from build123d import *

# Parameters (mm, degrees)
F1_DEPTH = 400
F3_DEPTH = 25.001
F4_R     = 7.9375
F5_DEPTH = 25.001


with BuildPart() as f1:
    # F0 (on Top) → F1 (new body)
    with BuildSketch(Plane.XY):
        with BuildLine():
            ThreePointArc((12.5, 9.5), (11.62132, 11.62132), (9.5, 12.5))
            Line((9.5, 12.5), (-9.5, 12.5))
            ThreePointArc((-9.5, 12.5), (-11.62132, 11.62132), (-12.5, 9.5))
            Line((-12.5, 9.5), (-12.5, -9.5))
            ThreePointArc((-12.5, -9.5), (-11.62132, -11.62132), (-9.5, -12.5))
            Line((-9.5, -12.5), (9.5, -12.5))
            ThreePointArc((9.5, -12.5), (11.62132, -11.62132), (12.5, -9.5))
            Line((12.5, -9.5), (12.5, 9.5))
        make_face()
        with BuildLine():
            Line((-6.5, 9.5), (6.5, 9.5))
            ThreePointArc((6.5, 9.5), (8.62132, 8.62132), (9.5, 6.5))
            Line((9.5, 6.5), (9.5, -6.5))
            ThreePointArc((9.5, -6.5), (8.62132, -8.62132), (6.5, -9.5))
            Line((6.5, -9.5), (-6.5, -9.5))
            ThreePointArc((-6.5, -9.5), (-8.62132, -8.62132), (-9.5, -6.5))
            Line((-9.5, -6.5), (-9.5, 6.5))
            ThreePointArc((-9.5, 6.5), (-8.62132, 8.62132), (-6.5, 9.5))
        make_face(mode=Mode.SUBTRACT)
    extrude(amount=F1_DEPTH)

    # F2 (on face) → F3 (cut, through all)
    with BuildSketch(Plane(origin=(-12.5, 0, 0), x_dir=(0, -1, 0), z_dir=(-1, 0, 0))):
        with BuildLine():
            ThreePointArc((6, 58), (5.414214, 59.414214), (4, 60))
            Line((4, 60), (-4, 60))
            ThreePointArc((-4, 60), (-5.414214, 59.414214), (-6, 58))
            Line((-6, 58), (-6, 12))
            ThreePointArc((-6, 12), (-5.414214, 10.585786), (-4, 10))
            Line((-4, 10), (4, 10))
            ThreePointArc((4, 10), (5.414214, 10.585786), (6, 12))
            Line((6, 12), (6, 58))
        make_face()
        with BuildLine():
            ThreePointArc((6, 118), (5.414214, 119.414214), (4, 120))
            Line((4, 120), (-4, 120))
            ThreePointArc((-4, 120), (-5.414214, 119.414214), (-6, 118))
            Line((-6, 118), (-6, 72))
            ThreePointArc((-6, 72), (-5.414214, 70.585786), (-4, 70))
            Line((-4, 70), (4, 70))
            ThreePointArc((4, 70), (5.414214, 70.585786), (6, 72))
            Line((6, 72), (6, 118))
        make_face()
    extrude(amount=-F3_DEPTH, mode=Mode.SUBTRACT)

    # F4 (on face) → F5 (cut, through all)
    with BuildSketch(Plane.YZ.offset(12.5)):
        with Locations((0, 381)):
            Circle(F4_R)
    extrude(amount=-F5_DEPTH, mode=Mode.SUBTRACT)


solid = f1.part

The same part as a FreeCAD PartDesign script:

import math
import FreeCAD as App
import Part
import Sketcher
from FreeCAD import Vector
Q = App.Units.Quantity

doc = App.newDocument("Part")
body = doc.addObject("PartDesign::Body", "Body")

sketch1 = body.newObject("Sketcher::SketchObject", "Sketch")
sketch1.AttachmentSupport = (doc.getObject("XY_Plane"), [""])
sketch1.MapMode = "FlatFace"
sketch1.addGeometry(Part.ArcOfCircle(Part.Circle(Vector(9.5, 9.5, 0), Vector(0, 0, 1), 3), math.radians(0), math.radians(90)), False)
sketch1.addGeometry(Part.LineSegment(Vector(9.5, 12.5, 0), Vector(-9.5, 12.5, 0)), False)
sketch1.addGeometry(Part.ArcOfCircle(Part.Circle(Vector(-9.5, 9.5, 0), Vector(0, 0, 1), 3), math.radians(90), math.radians(180)), False)
sketch1.addGeometry(Part.LineSegment(Vector(-12.5, 9.5, 0), Vector(-12.5, -9.5, 0)), False)
sketch1.addGeometry(Part.ArcOfCircle(Part.Circle(Vector(-9.5, -9.5, 0), Vector(0, 0, 1), 3), math.radians(-180), math.radians(-90)), False)
sketch1.addGeometry(Part.LineSegment(Vector(-9.5, -12.5, 0), Vector(9.5, -12.5, 0)), False)
sketch1.addGeometry(Part.ArcOfCircle(Part.Circle(Vector(9.5, -9.5, 0), Vector(0, 0, 1), 3), math.radians(-90), math.radians(0)), False)
sketch1.addGeometry(Part.LineSegment(Vector(12.5, -9.5, 0), Vector(12.5, 9.5, 0)), False)
sketch1.addGeometry(Part.ArcOfCircle(Part.Circle(Vector(-6.5, 6.5, 0), Vector(0, 0, 1), 3), math.radians(90), math.radians(180)), False)
sketch1.addGeometry(Part.LineSegment(Vector(-6.5, 9.5, 0), Vector(6.5, 9.5, 0)), False)
sketch1.addGeometry(Part.ArcOfCircle(Part.Circle(Vector(6.5, 6.5, 0), Vector(0, 0, 1), 3), math.radians(0), math.radians(90)), False)
sketch1.addGeometry(Part.LineSegment(Vector(9.5, 6.5, 0), Vector(9.5, -6.5, 0)), False)
sketch1.addGeometry(Part.ArcOfCircle(Part.Circle(Vector(6.5, -6.5, 0), Vector(0, 0, 1), 3), math.radians(-90), math.radians(0)), False)
sketch1.addGeometry(Part.LineSegment(Vector(6.5, -9.5, 0), Vector(-6.5, -9.5, 0)), False)
sketch1.addGeometry(Part.ArcOfCircle(Part.Circle(Vector(-6.5, -6.5, 0), Vector(0, 0, 1), 3), math.radians(-180), math.radians(-90)), False)
sketch1.addGeometry(Part.LineSegment(Vector(-9.5, -6.5, 0), Vector(-9.5, 6.5, 0)), False)
sketch1.addConstraint(Sketcher.Constraint("Tangent", 0, 2, 1, 1))
sketch1.addConstraint(Sketcher.Constraint("Tangent", 1, 2, 2, 1))
sketch1.addConstraint(Sketcher.Constraint("Tangent", 2, 2, 3, 1))
sketch1.addConstraint(Sketcher.Constraint("Tangent", 3, 2, 4, 1))
sketch1.addConstraint(Sketcher.Constraint("Tangent", 4, 2, 5, 1))
sketch1.addConstraint(Sketcher.Constraint("Tangent", 5, 2, 6, 1))
sketch1.addConstraint(Sketcher.Constraint("Tangent", 6, 2, 7, 1))
sketch1.addConstraint(Sketcher.Constraint("Tangent", 7, 2, 0, 1))
sketch1.addConstraint(Sketcher.Constraint("Tangent", 8, 1, 9, 1))
sketch1.addConstraint(Sketcher.Constraint("Tangent", 9, 2, 10, 2))
sketch1.addConstraint(Sketcher.Constraint("Tangent", 10, 1, 11, 1))
sketch1.addConstraint(Sketcher.Constraint("Tangent", 11, 2, 12, 2))
sketch1.addConstraint(Sketcher.Constraint("Tangent", 12, 1, 13, 1))
sketch1.addConstraint(Sketcher.Constraint("Tangent", 13, 2, 14, 2))
sketch1.addConstraint(Sketcher.Constraint("Tangent", 14, 1, 15, 1))
sketch1.addConstraint(Sketcher.Constraint("Tangent", 15, 2, 8, 2))
sketch1.addConstraint(Sketcher.Constraint("Horizontal", 1))
sketch1.addConstraint(Sketcher.Constraint("Vertical", 3))
sketch1.addConstraint(Sketcher.Constraint("Horizontal", 5))
sketch1.addConstraint(Sketcher.Constraint("Vertical", 7))
sketch1.addConstraint(Sketcher.Constraint("Horizontal", 9))
sketch1.addConstraint(Sketcher.Constraint("Vertical", 11))
sketch1.addConstraint(Sketcher.Constraint("Horizontal", 13))
sketch1.addConstraint(Sketcher.Constraint("Vertical", 15))
sketch1.addConstraint(Sketcher.Constraint("Equal", 0, 2))
sketch1.addConstraint(Sketcher.Constraint("Equal", 2, 4))
sketch1.addConstraint(Sketcher.Constraint("Equal", 4, 6))
sketch1.addConstraint(Sketcher.Constraint("Equal", 6, 8))
sketch1.addConstraint(Sketcher.Constraint("Equal", 8, 10))
sketch1.addConstraint(Sketcher.Constraint("Equal", 10, 12))
sketch1.addConstraint(Sketcher.Constraint("Equal", 12, 14))
sketch1.addConstraint(Sketcher.Constraint("Symmetric", 0, 3, 4, 3, -1, 1))
sketch1.addConstraint(Sketcher.Constraint("Symmetric", 8, 3, 12, 3, -1, 1))
sketch1.addConstraint(Sketcher.Constraint("Horizontal", 7, 2, 8, 1))
sketch1.addConstraint(Sketcher.Constraint("Vertical", 5, 2, 10, 1))
sketch1.addConstraint(Sketcher.Constraint("Equal", 5, 3))
sketch1.addConstraint(Sketcher.Constraint("Radius", 0, Q("3.000001 mm")))
sketch1.addConstraint(Sketcher.Constraint("DistanceX", 1, 2, 1, 1, Q("19 mm")))
pad1 = body.newObject("PartDesign::Pad", "Pad")
pad1.Profile = sketch1
pad1.Length = 400

sketch2 = body.newObject("Sketcher::SketchObject", "Sketch001")
sketch2.AttachmentSupport = (doc.getObject("YZ_Plane"), [""])
sketch2.MapMode = "FlatFace"
sketch2.AttachmentOffset = App.Placement(Vector(0, 0, -12.5), App.Rotation())
sketch2.addGeometry(Part.ArcOfCircle(Part.Circle(Vector(-4, 58, 0), Vector(0, 0, 1), 2), math.radians(90), math.radians(180)), False)
sketch2.addGeometry(Part.LineSegment(Vector(-4, 60, 0), Vector(4, 60, 0)), False)
sketch2.addGeometry(Part.ArcOfCircle(Part.Circle(Vector(4, 58, 0), Vector(0, 0, 1), 2), math.radians(0), math.radians(90)), False)
sketch2.addGeometry(Part.LineSegment(Vector(6, 58, 0), Vector(6, 12, 0)), False)
sketch2.addGeometry(Part.ArcOfCircle(Part.Circle(Vector(4, 12, 0), Vector(0, 0, 1), 2), math.radians(-90), math.radians(0)), False)
sketch2.addGeometry(Part.LineSegment(Vector(4, 10, 0), Vector(-4, 10, 0)), False)
sketch2.addGeometry(Part.ArcOfCircle(Part.Circle(Vector(-4, 12, 0), Vector(0, 0, 1), 2), math.radians(180), math.radians(270)), False)
sketch2.addGeometry(Part.LineSegment(Vector(-6, 12, 0), Vector(-6, 58, 0)), False)
sketch2.addGeometry(Part.ArcOfCircle(Part.Circle(Vector(-4, 118, 0), Vector(0, 0, 1), 2), math.radians(90), math.radians(180)), False)
sketch2.addGeometry(Part.LineSegment(Vector(-4, 120, 0), Vector(4, 120, 0)), False)
sketch2.addGeometry(Part.ArcOfCircle(Part.Circle(Vector(4, 118, 0), Vector(0, 0, 1), 2), math.radians(0), math.radians(90)), False)
sketch2.addGeometry(Part.LineSegment(Vector(6, 118, 0), Vector(6, 72, 0)), False)
sketch2.addGeometry(Part.ArcOfCircle(Part.Circle(Vector(4, 72, 0), Vector(0, 0, 1), 2), math.radians(-90), math.radians(0)), False)
sketch2.addGeometry(Part.LineSegment(Vector(4, 70, 0), Vector(-4, 70, 0)), False)
sketch2.addGeometry(Part.ArcOfCircle(Part.Circle(Vector(-4, 72, 0), Vector(0, 0, 1), 2), math.radians(180), math.radians(270)), False)
sketch2.addGeometry(Part.LineSegment(Vector(-6, 72, 0), Vector(-6, 118, 0)), False)
sketch2.addConstraint(Sketcher.Constraint("Tangent", 0, 1, 1, 1))
sketch2.addConstraint(Sketcher.Constraint("Tangent", 1, 2, 2, 2))
sketch2.addConstraint(Sketcher.Constraint("Tangent", 2, 1, 3, 1))
sketch2.addConstraint(Sketcher.Constraint("Tangent", 3, 2, 4, 2))
sketch2.addConstraint(Sketcher.Constraint("Tangent", 4, 1, 5, 1))
sketch2.addConstraint(Sketcher.Constraint("Tangent", 5, 2, 6, 2))
sketch2.addConstraint(Sketcher.Constraint("Tangent", 6, 1, 7, 1))
sketch2.addConstraint(Sketcher.Constraint("Tangent", 7, 2, 0, 2))
sketch2.addConstraint(Sketcher.Constraint("Tangent", 8, 1, 9, 1))
sketch2.addConstraint(Sketcher.Constraint("Tangent", 9, 2, 10, 2))
sketch2.addConstraint(Sketcher.Constraint("Tangent", 10, 1, 11, 1))
sketch2.addConstraint(Sketcher.Constraint("Tangent", 11, 2, 12, 2))
sketch2.addConstraint(Sketcher.Constraint("Tangent", 12, 1, 13, 1))
sketch2.addConstraint(Sketcher.Constraint("Tangent", 13, 2, 14, 2))
sketch2.addConstraint(Sketcher.Constraint("Tangent", 14, 1, 15, 1))
sketch2.addConstraint(Sketcher.Constraint("Tangent", 15, 2, 8, 2))
sketch2.addConstraint(Sketcher.Constraint("Horizontal", 1))
sketch2.addConstraint(Sketcher.Constraint("Vertical", 3))
sketch2.addConstraint(Sketcher.Constraint("Horizontal", 5))
sketch2.addConstraint(Sketcher.Constraint("Vertical", 7))
sketch2.addConstraint(Sketcher.Constraint("Horizontal", 9))
sketch2.addConstraint(Sketcher.Constraint("Vertical", 11))
sketch2.addConstraint(Sketcher.Constraint("Horizontal", 13))
sketch2.addConstraint(Sketcher.Constraint("Vertical", 15))
sketch2.addConstraint(Sketcher.Constraint("Equal", 0, 2))
sketch2.addConstraint(Sketcher.Constraint("Equal", 2, 4))
sketch2.addConstraint(Sketcher.Constraint("Equal", 4, 6))
sketch2.addConstraint(Sketcher.Constraint("Equal", 6, 8))
sketch2.addConstraint(Sketcher.Constraint("Equal", 8, 10))
sketch2.addConstraint(Sketcher.Constraint("Equal", 10, 12))
sketch2.addConstraint(Sketcher.Constraint("Equal", 12, 14))
sketch2.addConstraint(Sketcher.Constraint("Vertical", 6, 3, 8, 3))
sketch2.addConstraint(Sketcher.Constraint("Vertical", 4, 3, 10, 3))
sketch2.addConstraint(Sketcher.Constraint("Equal", 7, 11))
sketch2.addConstraint(Sketcher.Constraint("Radius", 0, Q("1.999999 mm")))
sketch2.addConstraint(Sketcher.Constraint("DistanceX", 1, 1, 1, 2, Q("8 mm")))
sketch2.addConstraint(Sketcher.Constraint("DistanceY", 3, 2, 3, 1, Q("46 mm")))
sketch2.addConstraint(Sketcher.Constraint("DistanceX", 0, 3, -1, 1, Q("4.000001 mm")))
sketch2.addConstraint(Sketcher.Constraint("DistanceY", -1, 1, 0, 3, Q("58.000001 mm")))
sketch2.addConstraint(Sketcher.Constraint("DistanceY", -1, 1, 8, 3, Q("118.000001 mm")))
pocket1 = body.newObject("PartDesign::Pocket", "Pocket")
pocket1.Profile = sketch2
pocket1.Type = "ThroughAll"
pocket1.Reversed = True

sketch3 = body.newObject("Sketcher::SketchObject", "Sketch002")
sketch3.AttachmentSupport = (doc.getObject("YZ_Plane"), [""])
sketch3.MapMode = "FlatFace"
sketch3.AttachmentOffset = App.Placement(Vector(0, 0, 12.5), App.Rotation())
sketch3.addGeometry(Part.Circle(Vector(0, 381, 0), Vector(0, 0, 1), 8), False)
sketch3.addConstraint(Sketcher.Constraint("PointOnObject", 0, 3, -2))
sketch3.addConstraint(Sketcher.Constraint("Diameter", 0, Q("15.875 mm")))
sketch3.addConstraint(Sketcher.Constraint("DistanceY", -1, 1, 0, 3, Q("381 mm")))
pocket2 = body.newObject("PartDesign::Pocket", "Pocket001")
pocket2.Profile = sketch3
pocket2.Type = "ThroughAll"

doc.recompute()
